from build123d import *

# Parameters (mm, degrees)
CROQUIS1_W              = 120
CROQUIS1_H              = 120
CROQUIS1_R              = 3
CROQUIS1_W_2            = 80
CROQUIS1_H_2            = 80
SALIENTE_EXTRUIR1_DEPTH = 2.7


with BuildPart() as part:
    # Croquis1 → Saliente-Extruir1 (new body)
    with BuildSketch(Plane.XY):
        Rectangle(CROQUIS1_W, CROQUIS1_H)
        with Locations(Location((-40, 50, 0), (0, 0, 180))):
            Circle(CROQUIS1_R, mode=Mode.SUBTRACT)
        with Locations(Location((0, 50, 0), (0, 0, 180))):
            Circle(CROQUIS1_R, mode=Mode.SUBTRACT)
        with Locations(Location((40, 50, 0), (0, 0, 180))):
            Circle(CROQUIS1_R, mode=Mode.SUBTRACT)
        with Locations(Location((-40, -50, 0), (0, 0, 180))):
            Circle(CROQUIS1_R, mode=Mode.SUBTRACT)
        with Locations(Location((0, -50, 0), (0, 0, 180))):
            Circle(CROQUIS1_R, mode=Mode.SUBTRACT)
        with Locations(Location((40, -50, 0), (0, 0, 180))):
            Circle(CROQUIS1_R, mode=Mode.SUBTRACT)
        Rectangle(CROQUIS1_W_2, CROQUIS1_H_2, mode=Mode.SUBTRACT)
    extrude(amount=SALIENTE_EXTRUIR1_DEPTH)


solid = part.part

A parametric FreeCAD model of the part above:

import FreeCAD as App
import Part
import Sketcher

V = App.Vector
Q = App.Units.Quantity


def add_polygon(sketch, points):
    """Adds a closed chain of lines whose ends are joined by coincident constraints."""
    first, n = sketch.GeometryCount, len(points)
    for a, b in zip(points, points[1:] + points[:1]):
        sketch.addGeometry(Part.LineSegment(App.Vector(*a, 0), App.Vector(*b, 0)), False)
    for i in range(n):
        sketch.addConstraint(Sketcher.Constraint("Coincident", first + i, 2, first + (i + 1) % n, 1))

doc = App.newDocument("Part")
params = doc.addObject("Spreadsheet::Sheet", "Params")
for row, (alias, value) in enumerate([
    ("sketch1_diameter", "6 mm"),
    ("sketch1_width", "120 mm"),
    ("sketch1_width2", "80 mm"),
    ("pad1_length", "2.7 mm"),
], start=1):
    params.set(f"A{row}", alias)
    params.set(f"B{row}", "=" + value)
    params.setAlias(f"B{row}", alias)

body = doc.addObject("PartDesign::Body", "Body")

# Sketch on XY plane
sketch1 = body.newObject("Sketcher::SketchObject", "Sketch")
sketch1.AttachmentSupport = (doc.getObject("XY_Plane"), [""])
sketch1.MapMode = "FlatFace"
add_polygon(sketch1, [(-60, 60), (-60, -60), (60, -60), (60, 60)])  # lines 0-3
sketch1.addGeometry(Part.Circle(V(-40, -50, 0), V(0, 0, 1), 3), False)  # 4
sketch1.addGeometry(Part.Circle(V(0, -50, 0), V(0, 0, 1), 3), False)  # 5
sketch1.addGeometry(Part.Circle(V(40, -50, 0), V(0, 0, 1), 3), False)  # 6
sketch1.addGeometry(Part.Circle(V(-40, 50, 0), V(0, 0, 1), 3), False)  # 7
add_polygon(sketch1, [(40, -40), (-40, -40), (-40, 40), (40, 40)])  # lines 8-11
sketch1.addGeometry(Part.Circle(V(0, 50, 0), V(0, 0, 1), 3), False)  # 12
sketch1.addGeometry(Part.Circle(V(40, 50, 0), V(0, 0, 1), 3), False)  # 13
sketch1.addConstraint([
    Sketcher.Constraint("Vertical", 0),
    Sketcher.Constraint("Horizontal", 1),
    Sketcher.Constraint("Vertical", 2),
    Sketcher.Constraint("Horizontal", 3),
    Sketcher.Constraint("Horizontal", 8),
    Sketcher.Constraint("Vertical", 9),
    Sketcher.Constraint("Horizontal", 10),
    Sketcher.Constraint("Vertical", 11),
    Sketcher.Constraint("Equal", 4, 5),
    Sketcher.Constraint("Equal", 5, 6),
    Sketcher.Constraint("Equal", 6, 7),
    Sketcher.Constraint("Equal", 7, 12),
    Sketcher.Constraint("Equal", 12, 13),
    Sketcher.Constraint("Symmetric", 6, 3, 7, 3, -1, 1),
    Sketcher.Constraint("Symmetric", 5, 3, 12, 3, -1, 1),
    Sketcher.Constraint("Symmetric", 4, 3, 13, 3, -1, 1),
    Sketcher.Constraint("Symmetric", 0, 2, 2, 2, -1, 1),
    Sketcher.Constraint("Symmetric", 8, 2, 10, 2, -1, 1),
    Sketcher.Constraint("Symmetric", 4, 3, 6, 3, -2),
    Sketcher.Constraint("PointOnObject", 5, 3, -2),
    Sketcher.Constraint("Horizontal", 4, 3, 5, 3),
    Sketcher.Constraint("Vertical", 7, 3, 8, 2),
    Sketcher.Constraint("Equal", 3, 0),
    Sketcher.Constraint("Equal", 10, 9),
    Sketcher.Constraint("Diameter", 4, Q("6 mm")),
    Sketcher.Constraint("DistanceX", 1, 1, 1, 2, Q("120 mm")),
    Sketcher.Constraint("DistanceX", 8, 2, 8, 1, Q("80 mm")),
    Sketcher.Constraint("DistanceY", 4, 3, -1, 1, Q("50 mm")),
])
sketch1.setExpression("Constraints[32]", "Params.sketch1_diameter")
sketch1.setExpression("Constraints[33]", "Params.sketch1_width")
sketch1.setExpression("Constraints[34]", "Params.sketch1_width2")
pad1 = body.newObject("PartDesign::Pad", "Pad")
pad1.Profile = sketch1
pad1.setExpression("Length", "Params.pad1_length")

doc.recompute()
